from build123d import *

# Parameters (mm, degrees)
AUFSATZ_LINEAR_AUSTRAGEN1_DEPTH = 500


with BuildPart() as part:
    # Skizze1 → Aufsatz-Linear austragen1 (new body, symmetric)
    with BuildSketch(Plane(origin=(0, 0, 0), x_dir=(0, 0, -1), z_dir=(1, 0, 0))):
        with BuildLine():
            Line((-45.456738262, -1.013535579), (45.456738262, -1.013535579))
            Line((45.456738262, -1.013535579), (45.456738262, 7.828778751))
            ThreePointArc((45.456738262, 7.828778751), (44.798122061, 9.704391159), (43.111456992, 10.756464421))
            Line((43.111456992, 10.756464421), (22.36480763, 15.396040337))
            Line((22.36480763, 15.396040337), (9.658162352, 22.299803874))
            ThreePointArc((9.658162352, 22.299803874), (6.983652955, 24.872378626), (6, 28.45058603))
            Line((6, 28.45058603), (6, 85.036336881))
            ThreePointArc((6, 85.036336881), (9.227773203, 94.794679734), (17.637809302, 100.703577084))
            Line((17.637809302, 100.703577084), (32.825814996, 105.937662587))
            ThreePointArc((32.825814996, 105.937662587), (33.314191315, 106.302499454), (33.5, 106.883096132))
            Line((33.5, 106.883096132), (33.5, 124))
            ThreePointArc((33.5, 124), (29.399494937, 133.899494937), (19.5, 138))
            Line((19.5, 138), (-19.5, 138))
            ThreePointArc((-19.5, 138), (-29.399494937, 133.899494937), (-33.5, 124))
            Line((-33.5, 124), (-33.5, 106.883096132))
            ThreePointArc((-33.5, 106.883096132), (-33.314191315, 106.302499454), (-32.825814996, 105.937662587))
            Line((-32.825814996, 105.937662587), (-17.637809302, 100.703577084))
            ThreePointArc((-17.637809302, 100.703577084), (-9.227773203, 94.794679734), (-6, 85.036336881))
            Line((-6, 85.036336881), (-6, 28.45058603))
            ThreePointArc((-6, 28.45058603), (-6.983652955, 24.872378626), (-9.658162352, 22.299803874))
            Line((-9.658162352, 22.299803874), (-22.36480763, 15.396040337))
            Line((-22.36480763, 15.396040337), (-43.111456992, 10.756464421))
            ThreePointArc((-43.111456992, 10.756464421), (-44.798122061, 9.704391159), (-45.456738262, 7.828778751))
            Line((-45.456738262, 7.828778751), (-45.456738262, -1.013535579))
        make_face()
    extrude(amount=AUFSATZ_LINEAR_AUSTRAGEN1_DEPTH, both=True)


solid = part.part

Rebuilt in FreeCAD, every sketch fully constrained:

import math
import FreeCAD as App
import Part
import Sketcher

V = App.Vector

doc = App.newDocument("Part")
body = doc.addObject("PartDesign::Body", "Body")

# Sketch on YZ plane
sketch1 = doc.addObject("Sketcher::SketchObject", "Sketch")
body.addObject(sketch1)
sketch1.AttachmentSupport = (doc.YZ_Plane, [""])
sketch1.MapMode = "FlatFace"
sketch1.addGeometry([
    Part.LineSegment(V(-1, 45.5, 0), V(-1, -45.5, 0)),  # 0
    Part.LineSegment(V(-1, -45.5, 0), V(7.8, -45.5, 0)),  # 1
    Part.ArcOfCircle(Part.Circle(V(7.8, -42.5, 0), V(0, 0, 1), 3), math.radians(-90), math.radians(-13)),  # 2
    Part.LineSegment(V(10.8, -43.1, 0), V(15.4, -22.4, 0)),  # 3
    Part.LineSegment(V(15.4, -22.4, 0), V(22.3, -9.7, 0)),  # 4
    Part.ArcOfCircle(Part.Circle(V(28.5, -13, 0), V(0, 0, 1), 7), math.radians(90), math.radians(151)),  # 5
    Part.LineSegment(V(28.5, -6, 0), V(85, -6, 0)),  # 6
    Part.ArcOfCircle(Part.Circle(V(85, -22.4, 0), V(0, 0, 1), 16.4), math.radians(17), math.radians(90)),  # 7
    Part.LineSegment(V(100.7, -17.6, 0), V(105.9, -32.8, 0)),  # 8
    Part.ArcOfCircle(Part.Circle(V(106.9, -32.5, 0), V(0, 0, 1), 1), math.radians(-161), math.radians(-90)),  # 9
    Part.LineSegment(V(106.9, -33.5, 0), V(124, -33.5, 0)),  # 10
    Part.ArcOfCircle(Part.Circle(V(124, -19.5, 0), V(0, 0, 1), 14), math.radians(-90), math.radians(0)),  # 11
    Part.LineSegment(V(138, -19.5, 0), V(138, 19.5, 0)),  # 12
    Part.ArcOfCircle(Part.Circle(V(124, 19.5, 0), V(0, 0, 1), 14), math.radians(0), math.radians(90)),  # 13
    Part.LineSegment(V(124, 33.5, 0), V(106.9, 33.5, 0)),  # 14
    Part.ArcOfCircle(Part.Circle(V(106.9, 32.5, 0), V(0, 0, 1), 1), math.radians(90), math.radians(161)),  # 15
    Part.LineSegment(V(105.9, 32.8, 0), V(100.7, 17.6, 0)),  # 16
    Part.ArcOfCircle(Part.Circle(V(85, 22.4, 0), V(0, 0, 1), 16.4), math.radians(-90), math.radians(-17)),  # 17
    Part.LineSegment(V(85, 6, 0), V(28.5, 6, 0)),  # 18
    Part.ArcOfCircle(Part.Circle(V(28.5, 13, 0), V(0, 0, 1), 7), math.radians(-151), math.radians(-90)),  # 19
    Part.LineSegment(V(22.3, 9.7, 0), V(15.4, 22.4, 0)),  # 20
    Part.LineSegment(V(15.4, 22.4, 0), V(10.8, 43.1, 0)),  # 21
    Part.ArcOfCircle(Part.Circle(V(7.8, 42.5, 0), V(0, 0, 1), 3), math.radians(13), math.radians(90)),  # 22
    Part.LineSegment(V(7.8, 45.5, 0), V(-1, 45.5, 0)),  # 23
], False)
sketch1.addConstraint([
    Sketcher.Constraint("Coincident", 0, 2, 1, 1),
    Sketcher.Constraint("Tangent", 1, 2, 2, 1),
    Sketcher.Constraint("Tangent", 2, 2, 3, 1),
    Sketcher.Constraint("Coincident", 3, 2, 4, 1),
    Sketcher.Constraint("Tangent", 4, 2, 5, 2),
    Sketcher.Constraint("Tangent", 5, 1, 6, 1),
    Sketcher.Constraint("Tangent", 6, 2, 7, 2),
    Sketcher.Constraint("Coincident", 7, 1, 8, 1),
    Sketcher.Constraint("Tangent", 8, 2, 9, 1),
    Sketcher.Constraint("Tangent", 9, 2, 10, 1),
    Sketcher.Constraint("Tangent", 10, 2, 11, 1),
    Sketcher.Constraint("Tangent", 11, 2, 12, 1),
    Sketcher.Constraint("Tangent", 12, 2, 13, 1),
    Sketcher.Constraint("Tangent", 13, 2, 14, 1),
    Sketcher.Constraint("Tangent", 14, 2, 15, 1),
    Sketcher.Constraint("Tangent", 15, 2, 16, 1),
    Sketcher.Constraint("Coincident", 16, 2, 17, 2),
    Sketcher.Constraint("Tangent", 17, 1, 18, 1),
    Sketcher.Constraint("Tangent", 18, 2, 19, 2),
    Sketcher.Constraint("Tangent", 19, 1, 20, 1),
    Sketcher.Constraint("Coincident", 20, 2, 21, 1),
    Sketcher.Constraint("Tangent", 21, 2, 22, 1),
    Sketcher.Constraint("Tangent", 22, 2, 23, 1),
    Sketcher.Constraint("Coincident", 23, 2, 0, 1),
    Sketcher.Constraint("Vertical", 0),
    Sketcher.Constraint("Horizontal", 1),
    Sketcher.Constraint("Horizontal", 6),
    Sketcher.Constraint("Horizontal", 10),
    Sketcher.Constraint("Vertical", 12),
    Sketcher.Constraint("Horizontal", 14),
    Sketcher.Constraint("Horizontal", 18),
    Sketcher.Constraint("Horizontal", 23),
    Sketcher.Constraint("Equal", 11, 13),
    Sketcher.Constraint("Equal", 9, 15),
    Sketcher.Constraint("Equal", 7, 17),
    Sketcher.Constraint("Equal", 5, 19),
    Sketcher.Constraint("Equal", 2, 22),
    Sketcher.Constraint("Symmetric", 9, 3, 15, 3, -1),
    Sketcher.Constraint("Symmetric", 7, 3, 17, 3, -1),
    Sketcher.Constraint("Symmetric", 2, 3, 22, 3, -1),
    Sketcher.Constraint("Symmetric", 4, 2, 19, 1, -1),
    Sketcher.Constraint("Horizontal", 7, 3, 3, 2),
    Sketcher.Constraint("Horizontal", 17, 3, 20, 2),
    Sketcher.Constraint("Vertical", 7, 1, 16, 2),
    Sketcher.Constraint("Radius", 2, 3.0),
    Sketcher.Constraint("Radius", 5, 7.0),
    Sketcher.Constraint("Radius", 9, 1.0),
    Sketcher.Constraint("Radius", 11, 14.0),
    Sketcher.Constraint("DistanceY", 12, 1, 12, 2, 39.0),
    Sketcher.Constraint("DistanceY", 5, 3, -1, 1, 13.0),
    Sketcher.Constraint("DistanceX", -1, 1, 11, 3, 124.0),
    Sketcher.Constraint("DistanceX", 0, 2, 2, 2, 11.77),
    Sketcher.Constraint("Radius", 7, 16.364808),
    Sketcher.Constraint("DistanceY", 7, 3, 7, 1, 4.726998),
    Sketcher.Constraint("DistanceX", 6, 1, 6, 2, 56.585751),
    Sketcher.Constraint("Distance", 4, 14.461009),
    Sketcher.Constraint("DistanceX", 1, 1, 1, 2, 8.842314),
    Sketcher.Constraint("DistanceX", 10, 1, 10, 2, 17.116904),
    Sketcher.Constraint("DistanceY", 0, 2, 0, 1, 90.913477),
    Sketcher.Constraint("DistanceX", -1, 1, 2, 3, 7.828779),
])
pad1 = doc.addObject("PartDesign::Pad", "Pad")
body.addObject(pad1)
pad1.Profile = sketch1
pad1.Length = 1000
pad1.Midplane = True

doc.recompute()
